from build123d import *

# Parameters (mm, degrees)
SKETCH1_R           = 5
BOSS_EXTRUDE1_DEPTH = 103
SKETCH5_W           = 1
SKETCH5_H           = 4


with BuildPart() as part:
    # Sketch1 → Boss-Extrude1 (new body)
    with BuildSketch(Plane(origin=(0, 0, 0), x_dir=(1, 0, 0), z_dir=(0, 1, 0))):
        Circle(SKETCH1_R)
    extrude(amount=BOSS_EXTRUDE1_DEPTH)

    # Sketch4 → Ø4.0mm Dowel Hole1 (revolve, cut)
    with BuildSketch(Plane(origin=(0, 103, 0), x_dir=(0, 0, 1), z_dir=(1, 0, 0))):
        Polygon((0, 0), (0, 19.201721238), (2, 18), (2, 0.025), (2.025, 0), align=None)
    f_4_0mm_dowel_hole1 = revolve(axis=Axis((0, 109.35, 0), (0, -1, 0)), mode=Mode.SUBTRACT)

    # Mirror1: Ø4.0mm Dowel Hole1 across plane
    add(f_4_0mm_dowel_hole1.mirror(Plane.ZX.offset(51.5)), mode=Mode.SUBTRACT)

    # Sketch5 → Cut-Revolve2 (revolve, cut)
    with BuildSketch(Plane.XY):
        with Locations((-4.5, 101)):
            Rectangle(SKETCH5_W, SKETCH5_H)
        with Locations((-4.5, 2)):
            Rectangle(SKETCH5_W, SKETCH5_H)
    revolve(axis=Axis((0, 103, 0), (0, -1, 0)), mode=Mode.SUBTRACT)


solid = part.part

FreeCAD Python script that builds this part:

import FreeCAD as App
import Part
import Sketcher
Q = App.Units.Quantity

doc = App.newDocument("Part")
body = doc.addObject("PartDesign::Body", "Body")

sketch1 = doc.addObject("Sketcher::SketchObject", "Sketch")
body.addObject(sketch1)
sketch1.AttachmentSupport = (doc.XZ_Plane, [""])
sketch1.MapMode = "FlatFace"
sketch1.addGeometry(Part.Circle(App.Vector(0, 0, 0), App.Vector(0, 0, 1), 5), False)
sketch1.addConstraint([
    Sketcher.Constraint("Coincident", 0, 3, -1, 1),
    Sketcher.Constraint("Diameter", 0, Q("10 mm")),
])
pad1 = doc.addObject("PartDesign::Pad", "Pad")
body.addObject(pad1)
pad1.Profile = sketch1
pad1.Length = 103
pad1.Reversed = True

sketch2 = doc.addObject("Sketcher::SketchObject", "Sketch001")
body.addObject(sketch2)
sketch2.AttachmentSupport = (doc.YZ_Plane, [""])
sketch2.MapMode = "FlatFace"
sketch2.addGeometry([
    Part.LineSegment(App.Vector(83.798279, 0, 0), App.Vector(103, 0, 0)),
    Part.LineSegment(App.Vector(103, 0, 0), App.Vector(103, 2.025, 0)),
    Part.LineSegment(App.Vector(103, 2.025, 0), App.Vector(102.975, 2, 0)),
    Part.LineSegment(App.Vector(102.975, 2, 0), App.Vector(85, 2, 0)),
    Part.LineSegment(App.Vector(85, 2, 0), App.Vector(83.798279, 0, 0)),
], False)
sketch2.addConstraint([
    Sketcher.Constraint("Coincident", 0, 2, 1, 1),
    Sketcher.Constraint("Coincident", 1, 2, 2, 1),
    Sketcher.Constraint("Coincident", 2, 2, 3, 1),
    Sketcher.Constraint("Coincident", 3, 2, 4, 1),
    Sketcher.Constraint("Coincident", 4, 2, 0, 1),
    Sketcher.Constraint("Horizontal", 0),
    Sketcher.Constraint("Vertical", 1),
    Sketcher.Constraint("Horizontal", 3),
    Sketcher.Constraint("PointOnObject", 0, 2, -1),
    Sketcher.Constraint("Angle", 2, Q("-135 deg")),
    Sketcher.Constraint("Angle", 4, Q("-121 deg")),
    Sketcher.Constraint("DistanceX", -1, 1, 0, 2, Q("103 mm")),
    Sketcher.Constraint("DistanceY", -1, 1, 2, 2, Q("2 mm")),
    Sketcher.Constraint("DistanceX", -1, 1, 3, 2, Q("85 mm")),
    Sketcher.Constraint("DistanceX", 3, 2, 3, 1, Q("17.975 mm")),
])
groove = doc.addObject("PartDesign::Groove", "Groove")
body.addObject(groove)
groove.Profile = sketch2
groove.ReferenceAxis = (sketch2, ["H_Axis"])
groove.Angle = 360
doc.recompute()

datumplane = doc.addObject("PartDesign::Plane", "DatumPlane")
body.addObject(datumplane)
datumplane.AttachmentSupport = (doc.XZ_Plane, [""])
datumplane.MapMode = "FlatFace"
datumplane.AttachmentOffset = App.Placement(App.Vector(0, 0, -51.5), App.Rotation())
mirrored = doc.addObject("PartDesign::Mirrored", "Mirrored")
body.addObject(mirrored)
mirrored.Originals = [groove]
mirrored.MirrorPlane = (datumplane, [""])
body.Tip = mirrored

sketch3 = doc.addObject("Sketcher::SketchObject", "Sketch002")
body.addObject(sketch3)
sketch3.AttachmentSupport = (doc.XY_Plane, [""])
sketch3.MapMode = "FlatFace"
sketch3.addGeometry([
    Part.LineSegment(App.Vector(-5, 103, 0), App.Vector(-5, 99, 0)),
    Part.LineSegment(App.Vector(-5, 99, 0), App.Vector(-4, 99, 0)),
    Part.LineSegment(App.Vector(-4, 99, 0), App.Vector(-4, 103, 0)),
    Part.LineSegment(App.Vector(-4, 103, 0), App.Vector(-5, 103, 0)),
    Part.LineSegment(App.Vector(-5, 4, 0), App.Vector(-5, 0, 0)),
    Part.LineSegment(App.Vector(-5, 0, 0), App.Vector(-4, 0, 0)),
    Part.LineSegment(App.Vector(-4, 0, 0), App.Vector(-4, 4, 0)),
    Part.LineSegment(App.Vector(-4, 4, 0), App.Vector(-5, 4, 0)),
], False)
sketch3.addConstraint([
    Sketcher.Constraint("Coincident", 0, 2, 1, 1),
    Sketcher.Constraint("Coincident", 1, 2, 2, 1),
    Sketcher.Constraint("Coincident", 2, 2, 3, 1),
    Sketcher.Constraint("Coincident", 3, 2, 0, 1),
    Sketcher.Constraint("Coincident", 4, 2, 5, 1),
    Sketcher.Constraint("Coincident", 5, 2, 6, 1),
    Sketcher.Constraint("Coincident", 6, 2, 7, 1),
    Sketcher.Constraint("Coincident", 7, 2, 4, 1),
    Sketcher.Constraint("Vertical", 0),
    Sketcher.Constraint("Horizontal", 1),
    Sketcher.Constraint("Vertical", 2),
    Sketcher.Constraint("Horizontal", 3),
    Sketcher.Constraint("Vertical", 4),
    Sketcher.Constraint("Horizontal", 5),
    Sketcher.Constraint("Vertical", 6),
    Sketcher.Constraint("Horizontal", 7),
    Sketcher.Constraint("PointOnObject", 4, 2, -1),
    Sketcher.Constraint("Vertical", 3, 2, 4, 2),
    Sketcher.Constraint("Vertical", 2, 2, 5, 2),
    Sketcher.Constraint("Equal", 2, 4),
    Sketcher.Constraint("DistanceX", 1, 1, 1, 2, Q("1 mm")),
    Sketcher.Constraint("DistanceY", 0, 2, 0, 1, Q("4 mm")),
    Sketcher.Constraint("DistanceX", 0, 2, -1, 1, Q("5 mm")),
    Sketcher.Constraint("DistanceY", -1, 1, 0, 2, Q("99 mm")),
])
groove2 = doc.addObject("PartDesign::Groove", "Groove001")
body.addObject(groove2)
groove2.Profile = sketch3
groove2.ReferenceAxis = (sketch3, ["V_Axis"])
groove2.Angle = 360

doc.recompute()
